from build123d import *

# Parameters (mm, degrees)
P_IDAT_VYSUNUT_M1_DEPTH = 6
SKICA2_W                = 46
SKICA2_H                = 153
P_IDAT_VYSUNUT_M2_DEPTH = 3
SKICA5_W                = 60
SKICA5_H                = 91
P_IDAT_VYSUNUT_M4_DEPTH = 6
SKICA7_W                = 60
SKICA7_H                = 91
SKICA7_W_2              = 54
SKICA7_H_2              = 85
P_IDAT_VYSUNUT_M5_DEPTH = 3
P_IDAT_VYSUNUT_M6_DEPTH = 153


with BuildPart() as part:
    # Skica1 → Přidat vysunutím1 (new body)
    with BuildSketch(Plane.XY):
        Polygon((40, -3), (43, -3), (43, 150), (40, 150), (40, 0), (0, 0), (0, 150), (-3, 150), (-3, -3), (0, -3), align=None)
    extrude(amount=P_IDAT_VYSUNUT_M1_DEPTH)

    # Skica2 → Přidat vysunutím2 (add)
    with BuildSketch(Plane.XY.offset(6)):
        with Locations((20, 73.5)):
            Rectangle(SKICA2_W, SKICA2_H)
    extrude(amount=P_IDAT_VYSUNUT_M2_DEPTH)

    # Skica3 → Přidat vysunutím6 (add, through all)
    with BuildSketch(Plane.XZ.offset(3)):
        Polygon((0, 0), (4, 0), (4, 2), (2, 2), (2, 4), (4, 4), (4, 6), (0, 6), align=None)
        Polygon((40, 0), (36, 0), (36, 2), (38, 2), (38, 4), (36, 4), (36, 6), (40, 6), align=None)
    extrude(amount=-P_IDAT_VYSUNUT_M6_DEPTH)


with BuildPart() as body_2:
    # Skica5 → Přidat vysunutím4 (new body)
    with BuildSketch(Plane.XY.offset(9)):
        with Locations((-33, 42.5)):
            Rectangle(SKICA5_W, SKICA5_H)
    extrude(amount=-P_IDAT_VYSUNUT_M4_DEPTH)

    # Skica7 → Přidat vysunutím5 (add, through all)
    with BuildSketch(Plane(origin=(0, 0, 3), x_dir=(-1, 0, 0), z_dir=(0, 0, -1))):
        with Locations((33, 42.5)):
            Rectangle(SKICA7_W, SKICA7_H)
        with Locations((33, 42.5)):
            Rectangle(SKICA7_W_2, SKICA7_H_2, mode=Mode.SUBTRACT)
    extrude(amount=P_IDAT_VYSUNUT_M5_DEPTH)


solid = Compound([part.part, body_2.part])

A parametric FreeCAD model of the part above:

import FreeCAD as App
import Part
import Sketcher

doc = App.newDocument("Part")
body = doc.addObject("PartDesign::Body", "Body")

sketch1 = body.newObject("Sketcher::SketchObject", "Sketch")
sketch1.AttachmentSupport = (doc.getObject("XY_Plane"), [""])
sketch1.MapMode = "FlatFace"
sketch1.addGeometry(Part.LineSegment(App.Vector(43, -3, 0), App.Vector(43, 150, 0)), False)
sketch1.addGeometry(Part.LineSegment(App.Vector(43, 150, 0), App.Vector(40, 150, 0)), False)
sketch1.addGeometry(Part.LineSegment(App.Vector(40, 150, 0), App.Vector(40, 0, 0)), False)
sketch1.addGeometry(Part.LineSegment(App.Vector(40, 0, 0), App.Vector(0, 0, 0)), False)
sketch1.addGeometry(Part.LineSegment(App.Vector(0, 0, 0), App.Vector(0, 150, 0)), False)
sketch1.addGeometry(Part.LineSegment(App.Vector(0, 150, 0), App.Vector(-3, 150, 0)), False)
sketch1.addGeometry(Part.LineSegment(App.Vector(-3, 150, 0), App.Vector(-3, -3, 0)), False)
sketch1.addGeometry(Part.LineSegment(App.Vector(-3, -3, 0), App.Vector(43, -3, 0)), False)
sketch1.addConstraint(Sketcher.Constraint("Coincident", 0, 2, 1, 1))
sketch1.addConstraint(Sketcher.Constraint("Coincident", 1, 2, 2, 1))
sketch1.addConstraint(Sketcher.Constraint("Coincident", 2, 2, 3, 1))
sketch1.addConstraint(Sketcher.Constraint("Coincident", 3, 2, 4, 1))
sketch1.addConstraint(Sketcher.Constraint("Coincident", 4, 2, 5, 1))
sketch1.addConstraint(Sketcher.Constraint("Coincident", 5, 2, 6, 1))
sketch1.addConstraint(Sketcher.Constraint("Coincident", 6, 2, 7, 1))
sketch1.addConstraint(Sketcher.Constraint("Coincident", 7, 2, 0, 1))
sketch1.addConstraint(Sketcher.Constraint("Vertical", 0))
sketch1.addConstraint(Sketcher.Constraint("Horizontal", 1))
sketch1.addConstraint(Sketcher.Constraint("Vertical", 2))
sketch1.addConstraint(Sketcher.Constraint("Horizontal", 3))
sketch1.addConstraint(Sketcher.Constraint("Vertical", 4))
sketch1.addConstraint(Sketcher.Constraint("Horizontal", 5))
sketch1.addConstraint(Sketcher.Constraint("Vertical", 6))
sketch1.addConstraint(Sketcher.Constraint("Horizontal", 7))
sketch1.addConstraint(Sketcher.Constraint("Coincident", 3, 2, -1, 1))
sketch1.addConstraint(Sketcher.Constraint("Horizontal", 1, 2, 4, 2))
sketch1.addConstraint(Sketcher.Constraint("Equal", 1, 5))
sketch1.addConstraint(Sketcher.Constraint("DistanceX", 1, 2, 1, 1, 3.0))
sketch1.addConstraint(Sketcher.Constraint("DistanceX", 3, 2, 3, 1, 40.0))
sketch1.addConstraint(Sketcher.Constraint("DistanceY", 0, 1, 0, 2, 153.0))
sketch1.addConstraint(Sketcher.Constraint("DistanceY", 2, 2, 2, 1, 150.0))
pad1 = body.newObject("PartDesign::Pad", "Pad")
pad1.Profile = sketch1
pad1.Length = 6

sketch2 = body.newObject("Sketcher::SketchObject", "Sketch001")
sketch2.AttachmentSupport = (doc.getObject("XY_Plane"), [""])
sketch2.MapMode = "FlatFace"
sketch2.AttachmentOffset = App.Placement(App.Vector(0, 0, 6), App.Rotation())
sketch2.addGeometry(Part.LineSegment(App.Vector(-3, 150, 0), App.Vector(-3, -3, 0)), False)
sketch2.addGeometry(Part.LineSegment(App.Vector(-3, -3, 0), App.Vector(43, -3, 0)), False)
sketch2.addGeometry(Part.LineSegment(App.Vector(43, -3, 0), App.Vector(43, 150, 0)), False)
sketch2.addGeometry(Part.LineSegment(App.Vector(43, 150, 0), App.Vector(-3, 150, 0)), False)
sketch2.addConstraint(Sketcher.Constraint("Coincident", 0, 2, 1, 1))
sketch2.addConstraint(Sketcher.Constraint("Coincident", 1, 2, 2, 1))
sketch2.addConstraint(Sketcher.Constraint("Coincident", 2, 2, 3, 1))
sketch2.addConstraint(Sketcher.Constraint("Coincident", 3, 2, 0, 1))
sketch2.addConstraint(Sketcher.Constraint("Vertical", 0))
sketch2.addConstraint(Sketcher.Constraint("Horizontal", 1))
sketch2.addConstraint(Sketcher.Constraint("Vertical", 2))
sketch2.addConstraint(Sketcher.Constraint("Horizontal", 3))
sketch2.addConstraint(Sketcher.Constraint("DistanceX", 1, 1, 1, 2, 46.0))
sketch2.addConstraint(Sketcher.Constraint("DistanceY", 0, 2, 0, 1, 153.0))
sketch2.addConstraint(Sketcher.Constraint("DistanceX", 0, 2, -1, 1, 3.0))
sketch2.addConstraint(Sketcher.Constraint("DistanceY", 0, 2, -1, 1, 3.0))
pad2 = body.newObject("PartDesign::Pad", "Pad001")
pad2.Profile = sketch2
pad2.Length = 3

sketch3 = body.newObject("Sketcher::SketchObject", "Sketch002")
sketch3.AttachmentSupport = (doc.getObject("XZ_Plane"), [""])
sketch3.MapMode = "FlatFace"
sketch3.AttachmentOffset = App.Placement(App.Vector(0, 0, 3), App.Rotation())
sketch3.addGeometry(Part.LineSegment(App.Vector(0, 0, 0), App.Vector(4, 0, 0)), False)
sketch3.addGeometry(Part.LineSegment(App.Vector(4, 0, 0), App.Vector(4, 2, 0)), False)
sketch3.addGeometry(Part.LineSegment(App.Vector(4, 2, 0), App.Vector(2, 2, 0)), False)
sketch3.addGeometry(Part.LineSegment(App.Vector(2, 2, 0), App.Vector(2, 4, 0)), False)
sketch3.addGeometry(Part.LineSegment(App.Vector(2, 4, 0), App.Vector(4, 4, 0)), False)
sketch3.addGeometry(Part.LineSegment(App.Vector(4, 4, 0), App.Vector(4, 6, 0)), False)
sketch3.addGeometry(Part.LineSegment(App.Vector(4, 6, 0), App.Vector(0, 6, 0)), False)
sketch3.addGeometry(Part.LineSegment(App.Vector(0, 6, 0), App.Vector(0, 0, 0)), False)
sketch3.addGeometry(Part.LineSegment(App.Vector(36, 0, 0), App.Vector(40, 0, 0)), False)
sketch3.addGeometry(Part.LineSegment(App.Vector(40, 0, 0), App.Vector(40, 6, 0)), False)
sketch3.addGeometry(Part.LineSegment(App.Vector(40, 6, 0), App.Vector(36, 6, 0)), False)
sketch3.addGeometry(Part.LineSegment(App.Vector(36, 6, 0), App.Vector(36, 4, 0)), False)
sketch3.addGeometry(Part.LineSegment(App.Vector(36, 4, 0), App.Vector(38, 4, 0)), False)
sketch3.addGeometry(Part.LineSegment(App.Vector(38, 4, 0), App.Vector(38, 2, 0)), False)
sketch3.addGeometry(Part.LineSegment(App.Vector(38, 2, 0), App.Vector(36, 2, 0)), False)
sketch3.addGeometry(Part.LineSegment(App.Vector(36, 2, 0), App.Vector(36, 0, 0)), False)
sketch3.addConstraint(Sketcher.Constraint("Coincident", 0, 2, 1, 1))
sketch3.addConstraint(Sketcher.Constraint("Coincident", 1, 2, 2, 1))
sketch3.addConstraint(Sketcher.Constraint("Coincident", 2, 2, 3, 1))
sketch3.addConstraint(Sketcher.Constraint("Coincident", 3, 2, 4, 1))
sketch3.addConstraint(Sketcher.Constraint("Coincident", 4, 2, 5, 1))
sketch3.addConstraint(Sketcher.Constraint("Coincident", 5, 2, 6, 1))
sketch3.addConstraint(Sketcher.Constraint("Coincident", 6, 2, 7, 1))
sketch3.addConstraint(Sketcher.Constraint("Coincident", 7, 2, 0, 1))
sketch3.addConstraint(Sketcher.Constraint("Coincident", 8, 2, 9, 1))
sketch3.addConstraint(Sketcher.Constraint("Coincident", 9, 2, 10, 1))
sketch3.addConstraint(Sketcher.Constraint("Coincident", 10, 2, 11, 1))
sketch3.addConstraint(Sketcher.Constraint("Coincident", 11, 2, 12, 1))
sketch3.addConstraint(Sketcher.Constraint("Coincident", 12, 2, 13, 1))
sketch3.addConstraint(Sketcher.Constraint("Coincident", 13, 2, 14, 1))
sketch3.addConstraint(Sketcher.Constraint("Coincident", 14, 2, 15, 1))
sketch3.addConstraint(Sketcher.Constraint("Coincident", 15, 2, 8, 1))
sketch3.addConstraint(Sketcher.Constraint("Horizontal", 0))
sketch3.addConstraint(Sketcher.Constraint("Vertical", 1))
sketch3.addConstraint(Sketcher.Constraint("Horizontal", 2))
sketch3.addConstraint(Sketcher.Constraint("Vertical", 3))
sketch3.addConstraint(Sketcher.Constraint("Horizontal", 4))
sketch3.addConstraint(Sketcher.Constraint("Vertical", 5))
sketch3.addConstraint(Sketcher.Constraint("Horizontal", 6))
sketch3.addConstraint(Sketcher.Constraint("Vertical", 7))
sketch3.addConstraint(Sketcher.Constraint("Horizontal", 8))
sketch3.addConstraint(Sketcher.Constraint("Vertical", 9))
sketch3.addConstraint(Sketcher.Constraint("Horizontal", 10))
sketch3.addConstraint(Sketcher.Constraint("Vertical", 11))
sketch3.addConstraint(Sketcher.Constraint("Horizontal", 12))
sketch3.addConstraint(Sketcher.Constraint("Vertical", 13))
sketch3.addConstraint(Sketcher.Constraint("Horizontal", 14))
sketch3.addConstraint(Sketcher.Constraint("Vertical", 15))
sketch3.addConstraint(Sketcher.Constraint("Coincident", 7, 2, -1, 1))
sketch3.addConstraint(Sketcher.Constraint("PointOnObject", 8, 2, -1))
sketch3.addConstraint(Sketcher.Constraint("Horizontal", 6, 2, 9, 2))
sketch3.addConstraint(Sketcher.Constraint("Horizontal", 4, 2, 11, 2))
sketch3.addConstraint(Sketcher.Constraint("Horizontal", 2, 2, 13, 2))
sketch3.addConstraint(Sketcher.Constraint("Vertical", 1, 2, 4, 2))
sketch3.addConstraint(Sketcher.Constraint("Vertical", 11, 2, 14, 2))
sketch3.addConstraint(Sketcher.Constraint("Equal", 6, 8))
sketch3.addConstraint(Sketcher.Constraint("Equal", 4, 12))
sketch3.addConstraint(Sketcher.Constraint("Equal", 14, 1))
sketch3.addConstraint(Sketcher.Constraint("Equal", 1, 3))
sketch3.addConstraint(Sketcher.Constraint("Equal", 3, 5))
sketch3.addConstraint(Sketcher.Constraint("DistanceX", 0, 1, 0, 2, 4.0))
sketch3.addConstraint(Sketcher.Constraint("DistanceX", 2, 2, 2, 1, 2.0))
sketch3.addConstraint(Sketcher.Constraint("DistanceX", -1, 1, 8, 2, 40.0))
pad3 = body.newObject("PartDesign::Pad", "Pad002")
pad3.Profile = sketch3
pad3.Length = 153
pad3.Reversed = True
body2 = doc.addObject("PartDesign::Body", "Body001")

sketch4 = body2.newObject("Sketcher::SketchObject", "Sketch003")
sketch4.AttachmentSupport = (doc.getObject("XY_Plane001"), [""])
sketch4.MapMode = "FlatFace"
sketch4.AttachmentOffset = App.Placement(App.Vector(0, 0, 9), App.Rotation())
sketch4.addGeometry(Part.LineSegment(App.Vector(-63, 88, 0), App.Vector(-63, -3, 0)), False)
sketch4.addGeometry(Part.LineSegment(App.Vector(-63, -3, 0), App.Vector(-3, -3, 0)), False)
sketch4.addGeometry(Part.LineSegment(App.Vector(-3, -3, 0), App.Vector(-3, 88, 0)), False)
sketch4.addGeometry(Part.LineSegment(App.Vector(-3, 88, 0), App.Vector(-63, 88, 0)), False)
sketch4.addConstraint(Sketcher.Constraint("Coincident", 0, 2, 1, 1))
sketch4.addConstraint(Sketcher.Constraint("Coincident", 1, 2, 2, 1))
sketch4.addConstraint(Sketcher.Constraint("Coincident", 2, 2, 3, 1))
sketch4.addConstraint(Sketcher.Constraint("Coincident", 3, 2, 0, 1))
sketch4.addConstraint(Sketcher.Constraint("Vertical", 0))
sketch4.addConstraint(Sketcher.Constraint("Horizontal", 1))
sketch4.addConstraint(Sketcher.Constraint("Vertical", 2))
sketch4.addConstraint(Sketcher.Constraint("Horizontal", 3))
sketch4.addConstraint(Sketcher.Constraint("DistanceX", 1, 1, 1, 2, 60.0))
sketch4.addConstraint(Sketcher.Constraint("DistanceY", 0, 2, 0, 1, 91.0))
sketch4.addConstraint(Sketcher.Constraint("DistanceX", 0, 2, -1, 1, 63.0))
sketch4.addConstraint(Sketcher.Constraint("DistanceY", 0, 2, -1, 1, 3.0))
pad4 = body2.newObject("PartDesign::Pad", "Pad003")
pad4.Profile = sketch4
pad4.Length = 6
pad4.Reversed = True

sketch5 = body2.newObject("Sketcher::SketchObject", "Sketch004")
sketch5.AttachmentSupport = (doc.getObject("XY_Plane001"), [""])
sketch5.MapMode = "FlatFace"
sketch5.AttachmentOffset = App.Placement(App.Vector(0, 0, 3), App.Rotation())
sketch5.addGeometry(Part.LineSegment(App.Vector(-3, 88, 0), App.Vector(-3, -3, 0)), False)
sketch5.addGeometry(Part.LineSegment(App.Vector(-3, -3, 0), App.Vector(-63, -3, 0)), False)
sketch5.addGeometry(Part.LineSegment(App.Vector(-63, -3, 0), App.Vector(-63, 88, 0)), False)
sketch5.addGeometry(Part.LineSegment(App.Vector(-63, 88, 0), App.Vector(-3, 88, 0)), False)
sketch5.addGeometry(Part.LineSegment(App.Vector(-60, 0, 0), App.Vector(-6, 0, 0)), False)
sketch5.addGeometry(Part.LineSegment(App.Vector(-6, 0, 0), App.Vector(-6, 85, 0)), False)
sketch5.addGeometry(Part.LineSegment(App.Vector(-6, 85, 0), App.Vector(-60, 85, 0)), False)
sketch5.addGeometry(Part.LineSegment(App.Vector(-60, 85, 0), App.Vector(-60, 0, 0)), False)
sketch5.addConstraint(Sketcher.Constraint("Coincident", 0, 2, 1, 1))
sketch5.addConstraint(Sketcher.Constraint("Coincident", 1, 2, 2, 1))
sketch5.addConstraint(Sketcher.Constraint("Coincident", 2, 2, 3, 1))
sketch5.addConstraint(Sketcher.Constraint("Coincident", 3, 2, 0, 1))
sketch5.addConstraint(Sketcher.Constraint("Coincident", 4, 2, 5, 1))
sketch5.addConstraint(Sketcher.Constraint("Coincident", 5, 2, 6, 1))
sketch5.addConstraint(Sketcher.Constraint("Coincident", 6, 2, 7, 1))
sketch5.addConstraint(Sketcher.Constraint("Coincident", 7, 2, 4, 1))
sketch5.addConstraint(Sketcher.Constraint("Vertical", 0))
sketch5.addConstraint(Sketcher.Constraint("Horizontal", 1))
sketch5.addConstraint(Sketcher.Constraint("Vertical", 2))
sketch5.addConstraint(Sketcher.Constraint("Horizontal", 3))
sketch5.addConstraint(Sketcher.Constraint("Horizontal", 4))
sketch5.addConstraint(Sketcher.Constraint("Vertical", 5))
sketch5.addConstraint(Sketcher.Constraint("Horizontal", 6))
sketch5.addConstraint(Sketcher.Constraint("Vertical", 7))
sketch5.addConstraint(Sketcher.Constraint("PointOnObject", 4, 2, -1))
sketch5.addConstraint(Sketcher.Constraint("DistanceX", 1, 2, 1, 1, 60.0))
sketch5.addConstraint(Sketcher.Constraint("DistanceX", 4, 1, 4, 2, 54.0))
sketch5.addConstraint(Sketcher.Constraint("DistanceY", 0, 2, 0, 1, 91.0))
sketch5.addConstraint(Sketcher.Constraint("DistanceY", 5, 1, 5, 2, 85.0))
sketch5.addConstraint(Sketcher.Constraint("DistanceX", 0, 2, -1, 1, 3.0))
sketch5.addConstraint(Sketcher.Constraint("DistanceY", 0, 2, -1, 1, 3.0))
sketch5.addConstraint(Sketcher.Constraint("DistanceX", 4, 2, -1, 1, 6.0))
pad5 = body2.newObject("PartDesign::Pad", "Pad004")
pad5.Profile = sketch5
pad5.Length = 3
pad5.Reversed = True

doc.recompute()
